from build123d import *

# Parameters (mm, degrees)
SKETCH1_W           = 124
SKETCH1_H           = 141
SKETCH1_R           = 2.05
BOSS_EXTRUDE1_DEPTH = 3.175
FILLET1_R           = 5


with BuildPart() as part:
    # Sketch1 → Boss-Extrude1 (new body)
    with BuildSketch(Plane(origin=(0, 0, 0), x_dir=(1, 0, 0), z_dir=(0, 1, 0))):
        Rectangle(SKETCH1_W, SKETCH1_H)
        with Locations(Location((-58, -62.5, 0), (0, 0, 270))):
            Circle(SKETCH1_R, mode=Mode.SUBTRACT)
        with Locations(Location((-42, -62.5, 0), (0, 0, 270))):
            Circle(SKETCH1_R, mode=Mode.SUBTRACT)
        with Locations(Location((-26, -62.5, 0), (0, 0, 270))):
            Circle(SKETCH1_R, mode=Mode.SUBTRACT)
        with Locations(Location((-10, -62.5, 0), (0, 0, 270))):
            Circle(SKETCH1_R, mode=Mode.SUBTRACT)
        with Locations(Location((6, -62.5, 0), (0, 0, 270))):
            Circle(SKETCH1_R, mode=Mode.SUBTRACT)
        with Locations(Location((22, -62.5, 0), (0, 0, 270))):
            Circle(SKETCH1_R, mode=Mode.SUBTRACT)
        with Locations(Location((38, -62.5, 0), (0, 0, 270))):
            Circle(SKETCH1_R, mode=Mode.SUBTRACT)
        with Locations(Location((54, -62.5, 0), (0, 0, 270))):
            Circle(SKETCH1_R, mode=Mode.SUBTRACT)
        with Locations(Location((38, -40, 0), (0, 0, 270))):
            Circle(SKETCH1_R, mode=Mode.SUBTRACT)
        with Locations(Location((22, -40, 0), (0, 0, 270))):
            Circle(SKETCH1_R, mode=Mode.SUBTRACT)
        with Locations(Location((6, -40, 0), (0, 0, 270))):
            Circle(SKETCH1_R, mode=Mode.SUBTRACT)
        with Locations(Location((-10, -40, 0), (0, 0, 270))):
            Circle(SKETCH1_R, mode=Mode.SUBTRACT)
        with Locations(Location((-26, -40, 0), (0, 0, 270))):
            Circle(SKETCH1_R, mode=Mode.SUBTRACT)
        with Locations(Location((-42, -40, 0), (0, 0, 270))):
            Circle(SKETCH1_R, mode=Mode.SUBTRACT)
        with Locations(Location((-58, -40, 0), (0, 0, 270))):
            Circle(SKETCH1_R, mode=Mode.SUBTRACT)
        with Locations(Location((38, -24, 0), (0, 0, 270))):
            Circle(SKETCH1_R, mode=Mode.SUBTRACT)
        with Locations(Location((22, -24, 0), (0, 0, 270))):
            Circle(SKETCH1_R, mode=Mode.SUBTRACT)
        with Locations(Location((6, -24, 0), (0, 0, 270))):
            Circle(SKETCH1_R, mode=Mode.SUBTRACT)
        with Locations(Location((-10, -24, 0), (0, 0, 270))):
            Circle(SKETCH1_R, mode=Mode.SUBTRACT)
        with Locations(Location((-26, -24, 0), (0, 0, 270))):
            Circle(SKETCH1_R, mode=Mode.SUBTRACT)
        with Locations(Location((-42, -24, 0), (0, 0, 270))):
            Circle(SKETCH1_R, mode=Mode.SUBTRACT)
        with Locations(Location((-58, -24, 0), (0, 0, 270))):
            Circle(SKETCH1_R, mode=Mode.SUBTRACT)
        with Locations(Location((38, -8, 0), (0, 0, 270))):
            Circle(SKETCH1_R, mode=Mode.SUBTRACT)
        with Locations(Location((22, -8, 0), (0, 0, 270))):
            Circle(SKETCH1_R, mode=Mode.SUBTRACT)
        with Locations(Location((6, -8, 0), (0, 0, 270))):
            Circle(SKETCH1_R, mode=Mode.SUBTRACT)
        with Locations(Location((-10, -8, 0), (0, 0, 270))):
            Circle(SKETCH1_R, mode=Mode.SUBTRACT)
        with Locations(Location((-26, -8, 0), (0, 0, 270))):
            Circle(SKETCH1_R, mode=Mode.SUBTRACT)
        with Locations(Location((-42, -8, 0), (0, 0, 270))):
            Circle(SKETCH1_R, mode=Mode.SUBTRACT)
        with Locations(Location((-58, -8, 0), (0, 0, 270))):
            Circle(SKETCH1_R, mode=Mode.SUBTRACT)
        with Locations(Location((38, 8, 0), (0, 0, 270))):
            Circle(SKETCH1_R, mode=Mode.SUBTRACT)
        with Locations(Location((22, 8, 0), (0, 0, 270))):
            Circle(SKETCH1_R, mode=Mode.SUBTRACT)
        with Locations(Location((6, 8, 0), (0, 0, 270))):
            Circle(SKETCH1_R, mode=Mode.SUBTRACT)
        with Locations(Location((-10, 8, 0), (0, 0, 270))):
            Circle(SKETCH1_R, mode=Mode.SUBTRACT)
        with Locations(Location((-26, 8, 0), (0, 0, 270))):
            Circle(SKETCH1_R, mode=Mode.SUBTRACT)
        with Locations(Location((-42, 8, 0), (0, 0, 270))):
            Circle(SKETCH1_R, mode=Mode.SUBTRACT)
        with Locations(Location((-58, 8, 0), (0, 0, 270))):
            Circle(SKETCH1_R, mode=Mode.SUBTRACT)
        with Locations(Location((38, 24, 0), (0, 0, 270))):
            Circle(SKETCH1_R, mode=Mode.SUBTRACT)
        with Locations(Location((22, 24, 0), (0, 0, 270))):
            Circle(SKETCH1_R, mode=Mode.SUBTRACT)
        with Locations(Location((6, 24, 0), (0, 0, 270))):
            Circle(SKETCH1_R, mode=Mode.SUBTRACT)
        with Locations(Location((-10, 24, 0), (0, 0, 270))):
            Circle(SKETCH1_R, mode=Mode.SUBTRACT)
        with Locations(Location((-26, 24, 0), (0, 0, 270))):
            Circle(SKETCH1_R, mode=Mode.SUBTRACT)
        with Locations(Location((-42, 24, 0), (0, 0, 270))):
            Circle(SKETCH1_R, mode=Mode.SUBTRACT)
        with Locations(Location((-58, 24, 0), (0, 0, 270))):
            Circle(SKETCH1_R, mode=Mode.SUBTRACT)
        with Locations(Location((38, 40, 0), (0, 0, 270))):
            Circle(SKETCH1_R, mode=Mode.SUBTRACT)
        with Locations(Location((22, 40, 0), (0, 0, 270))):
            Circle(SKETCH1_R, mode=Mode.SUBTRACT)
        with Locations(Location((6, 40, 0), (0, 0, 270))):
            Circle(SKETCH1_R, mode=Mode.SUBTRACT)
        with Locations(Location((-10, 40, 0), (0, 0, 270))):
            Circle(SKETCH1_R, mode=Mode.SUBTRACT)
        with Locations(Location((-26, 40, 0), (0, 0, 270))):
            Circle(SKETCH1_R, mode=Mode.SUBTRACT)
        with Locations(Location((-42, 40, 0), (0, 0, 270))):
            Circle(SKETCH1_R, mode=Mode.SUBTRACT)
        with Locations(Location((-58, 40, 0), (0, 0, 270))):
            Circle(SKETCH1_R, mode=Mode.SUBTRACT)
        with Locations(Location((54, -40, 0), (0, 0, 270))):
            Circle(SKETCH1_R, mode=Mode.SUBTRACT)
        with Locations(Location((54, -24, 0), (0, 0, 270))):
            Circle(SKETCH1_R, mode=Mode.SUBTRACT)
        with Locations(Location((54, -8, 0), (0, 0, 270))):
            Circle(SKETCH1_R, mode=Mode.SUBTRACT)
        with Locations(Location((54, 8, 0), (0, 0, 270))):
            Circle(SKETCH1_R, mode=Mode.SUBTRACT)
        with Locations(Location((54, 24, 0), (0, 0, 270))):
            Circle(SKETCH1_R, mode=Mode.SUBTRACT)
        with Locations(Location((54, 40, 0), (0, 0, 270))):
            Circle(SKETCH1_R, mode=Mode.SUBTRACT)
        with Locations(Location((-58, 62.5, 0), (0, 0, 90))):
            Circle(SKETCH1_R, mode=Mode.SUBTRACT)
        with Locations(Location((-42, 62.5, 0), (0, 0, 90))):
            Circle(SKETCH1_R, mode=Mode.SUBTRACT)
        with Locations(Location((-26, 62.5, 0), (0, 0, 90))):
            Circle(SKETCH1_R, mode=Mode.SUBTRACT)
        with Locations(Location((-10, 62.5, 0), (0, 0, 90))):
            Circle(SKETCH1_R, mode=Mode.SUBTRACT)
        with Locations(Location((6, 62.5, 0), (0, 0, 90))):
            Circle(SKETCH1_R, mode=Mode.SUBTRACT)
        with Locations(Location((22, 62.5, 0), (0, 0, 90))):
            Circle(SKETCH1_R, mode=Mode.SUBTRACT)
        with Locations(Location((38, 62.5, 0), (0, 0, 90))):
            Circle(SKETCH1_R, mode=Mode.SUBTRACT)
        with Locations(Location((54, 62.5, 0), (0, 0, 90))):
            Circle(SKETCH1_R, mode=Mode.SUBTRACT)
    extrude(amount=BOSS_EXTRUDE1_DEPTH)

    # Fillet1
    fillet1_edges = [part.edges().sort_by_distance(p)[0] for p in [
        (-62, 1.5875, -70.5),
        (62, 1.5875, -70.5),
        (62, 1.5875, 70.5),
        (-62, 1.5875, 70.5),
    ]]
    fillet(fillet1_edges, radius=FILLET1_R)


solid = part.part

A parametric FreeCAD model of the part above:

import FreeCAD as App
import Part
import Sketcher

V = App.Vector
Q = App.Units.Quantity


def edges_at(feature, points):
    """Names of the edges that pass closest to the given points."""
    edges = feature.Shape.Edges
    near = lambda p: min(range(len(edges)), key=lambda i: edges[i].distToShape(Part.Vertex(*p))[0])
    return sorted({f"Edge{near(p) + 1}" for p in points})

doc = App.newDocument("Part")
body = doc.addObject("PartDesign::Body", "Body")

sketch1 = body.newObject("Sketcher::SketchObject", "Sketch")
sketch1.AttachmentSupport = (doc.getObject("XZ_Plane"), [""])
sketch1.MapMode = "FlatFace"
sketch1.addGeometry([
    Part.LineSegment(V(-62, -70.5, 0), V(-62, 70.5, 0)),
    Part.LineSegment(V(-62, 70.5, 0), V(62, 70.5, 0)),
    Part.LineSegment(V(62, 70.5, 0), V(62, -70.5, 0)),
    Part.LineSegment(V(62, -70.5, 0), V(-62, -70.5, 0)),
    Part.Circle(V(-58, 62.5, 0), V(0, 0, 1), 2.05),
    Part.Circle(V(-42, 62.5, 0), V(0, 0, 1), 2.05),
    Part.Circle(V(-58, 40, 0), V(0, 0, 1), 2.05),
    Part.Circle(V(-42, 40, 0), V(0, 0, 1), 2.05),
    Part.Circle(V(-26, 62.5, 0), V(0, 0, 1), 2.05),
    Part.Circle(V(-10, 62.5, 0), V(0, 0, 1), 2.05),
    Part.Circle(V(-26, 40, 0), V(0, 0, 1), 2.05),
    Part.Circle(V(-10, 40, 0), V(0, 0, 1), 2.05),
    Part.Circle(V(-58, 24, 0), V(0, 0, 1), 2.05),
    Part.Circle(V(-42, 24, 0), V(0, 0, 1), 2.05),
    Part.Circle(V(-58, 8, 0), V(0, 0, 1), 2.05),
    Part.Circle(V(-42, 8, 0), V(0, 0, 1), 2.05),
    Part.Circle(V(-26, 24, 0), V(0, 0, 1), 2.05),
    Part.Circle(V(-10, 24, 0), V(0, 0, 1), 2.05),
    Part.Circle(V(-26, 8, 0), V(0, 0, 1), 2.05),
    Part.Circle(V(-10, 8, 0), V(0, 0, 1), 2.05),
    Part.Circle(V(6, 62.5, 0), V(0, 0, 1), 2.05),
    Part.Circle(V(22, 62.5, 0), V(0, 0, 1), 2.05),
    Part.Circle(V(6, 40, 0), V(0, 0, 1), 2.05),
    Part.Circle(V(22, 40, 0), V(0, 0, 1), 2.05),
    Part.Circle(V(38, 62.5, 0), V(0, 0, 1), 2.05),
    Part.Circle(V(54, 62.5, 0), V(0, 0, 1), 2.05),
    Part.Circle(V(38, 40, 0), V(0, 0, 1), 2.05),
    Part.Circle(V(54, 40, 0), V(0, 0, 1), 2.05),
    Part.Circle(V(6, 24, 0), V(0, 0, 1), 2.05),
    Part.Circle(V(22, 24, 0), V(0, 0, 1), 2.05),
    Part.Circle(V(6, 8, 0), V(0, 0, 1), 2.05),
    Part.Circle(V(22, 8, 0), V(0, 0, 1), 2.05),
    Part.Circle(V(38, 24, 0), V(0, 0, 1), 2.05),
    Part.Circle(V(54, 24, 0), V(0, 0, 1), 2.05),
    Part.Circle(V(38, 8, 0), V(0, 0, 1), 2.05),
    Part.Circle(V(54, 8, 0), V(0, 0, 1), 2.05),
    Part.Circle(V(-58, -8, 0), V(0, 0, 1), 2.05),
    Part.Circle(V(-42, -8, 0), V(0, 0, 1), 2.05),
    Part.Circle(V(-58, -24, 0), V(0, 0, 1), 2.05),
    Part.Circle(V(-42, -24, 0), V(0, 0, 1), 2.05),
    Part.Circle(V(-26, -8, 0), V(0, 0, 1), 2.05),
    Part.Circle(V(-10, -8, 0), V(0, 0, 1), 2.05),
    Part.Circle(V(-26, -24, 0), V(0, 0, 1), 2.05),
    Part.Circle(V(-10, -24, 0), V(0, 0, 1), 2.05),
    Part.Circle(V(-58, -40, 0), V(0, 0, 1), 2.05),
    Part.Circle(V(-42, -40, 0), V(0, 0, 1), 2.05),
    Part.Circle(V(-58, -62.5, 0), V(0, 0, 1), 2.05),
    Part.Circle(V(-42, -62.5, 0), V(0, 0, 1), 2.05),
    Part.Circle(V(-26, -40, 0), V(0, 0, 1), 2.05),
    Part.Circle(V(-10, -40, 0), V(0, 0, 1), 2.05),
    Part.Circle(V(-26, -62.5, 0), V(0, 0, 1), 2.05),
    Part.Circle(V(-10, -62.5, 0), V(0, 0, 1), 2.05),
    Part.Circle(V(6, -8, 0), V(0, 0, 1), 2.05),
    Part.Circle(V(22, -8, 0), V(0, 0, 1), 2.05),
    Part.Circle(V(6, -24, 0), V(0, 0, 1), 2.05),
    Part.Circle(V(22, -24, 0), V(0, 0, 1), 2.05),
    Part.Circle(V(38, -8, 0), V(0, 0, 1), 2.05),
    Part.Circle(V(54, -8, 0), V(0, 0, 1), 2.05),
    Part.Circle(V(38, -24, 0), V(0, 0, 1), 2.05),
    Part.Circle(V(54, -24, 0), V(0, 0, 1), 2.05),
    Part.Circle(V(6, -40, 0), V(0, 0, 1), 2.05),
    Part.Circle(V(22, -40, 0), V(0, 0, 1), 2.05),
    Part.Circle(V(6, -62.5, 0), V(0, 0, 1), 2.05),
    Part.Circle(V(22, -62.5, 0), V(0, 0, 1), 2.05),
    Part.Circle(V(38, -40, 0), V(0, 0, 1), 2.05),
    Part.Circle(V(54, -40, 0), V(0, 0, 1), 2.05),
    Part.Circle(V(38, -62.5, 0), V(0, 0, 1), 2.05),
    Part.Circle(V(54, -62.5, 0), V(0, 0, 1), 2.05),
], False)
sketch1.addConstraint([
    Sketcher.Constraint("Coincident", 0, 2, 1, 1),
    Sketcher.Constraint("Coincident", 1, 2, 2, 1),
    Sketcher.Constraint("Coincident", 2, 2, 3, 1),
    Sketcher.Constraint("Coincident", 3, 2, 0, 1),
    Sketcher.Constraint("Vertical", 0),
    Sketcher.Constraint("Horizontal", 1),
    Sketcher.Constraint("Vertical", 2),
    Sketcher.Constraint("Horizontal", 3),
    Sketcher.Constraint("Equal", 4, 5),
    Sketcher.Constraint("Equal", 5, 6),
    Sketcher.Constraint("Equal", 6, 7),
    Sketcher.Constraint("Equal", 7, 8),
    Sketcher.Constraint("Equal", 8, 9),
    Sketcher.Constraint("Equal", 9, 10),
    Sketcher.Constraint("Equal", 10, 11),
    Sketcher.Constraint("Equal", 11, 12),
    Sketcher.Constraint("Equal", 12, 13),
    Sketcher.Constraint("Equal", 13, 14),
    Sketcher.Constraint("Equal", 14, 15),
    Sketcher.Constraint("Equal", 15, 16),
    Sketcher.Constraint("Equal", 16, 17),
    Sketcher.Constraint("Equal", 17, 18),
    Sketcher.Constraint("Equal", 18, 19),
    Sketcher.Constraint("Equal", 19, 20),
    Sketcher.Constraint("Equal", 20, 21),
    Sketcher.Constraint("Equal", 21, 22),
    Sketcher.Constraint("Equal", 22, 23),
    Sketcher.Constraint("Equal", 23, 24),
    Sketcher.Constraint("Equal", 24, 25),
    Sketcher.Constraint("Equal", 25, 26),
    Sketcher.Constraint("Equal", 26, 27),
    Sketcher.Constraint("Equal", 27, 28),
    Sketcher.Constraint("Equal", 28, 29),
    Sketcher.Constraint("Equal", 29, 30),
    Sketcher.Constraint("Equal", 30, 31),
    Sketcher.Constraint("Equal", 31, 32),
    Sketcher.Constraint("Equal", 32, 33),
    Sketcher.Constraint("Equal", 33, 34),
    Sketcher.Constraint("Equal", 34, 35),
    Sketcher.Constraint("Equal", 35, 36),
    Sketcher.Constraint("Equal", 36, 37),
    Sketcher.Constraint("Equal", 37, 38),
    Sketcher.Constraint("Equal", 38, 39),
    Sketcher.Constraint("Equal", 39, 40),
    Sketcher.Constraint("Equal", 40, 41),
    Sketcher.Constraint("Equal", 41, 42),
    Sketcher.Constraint("Equal", 42, 43),
    Sketcher.Constraint("Equal", 43, 44),
    Sketcher.Constraint("Equal", 44, 45),
    Sketcher.Constraint("Equal", 45, 46),
    Sketcher.Constraint("Equal", 46, 47),
    Sketcher.Constraint("Equal", 47, 48),
    Sketcher.Constraint("Equal", 48, 49),
    Sketcher.Constraint("Equal", 49, 50),
    Sketcher.Constraint("Equal", 50, 51),
    Sketcher.Constraint("Equal", 51, 52),
    Sketcher.Constraint("Equal", 52, 53),
    Sketcher.Constraint("Equal", 53, 54),
    Sketcher.Constraint("Equal", 54, 55),
    Sketcher.Constraint("Equal", 55, 56),
    Sketcher.Constraint("Equal", 56, 57),
    Sketcher.Constraint("Equal", 57, 58),
    Sketcher.Constraint("Equal", 58, 59),
    Sketcher.Constraint("Equal", 59, 60),
    Sketcher.Constraint("Equal", 60, 61),
    Sketcher.Constraint("Equal", 61, 62),
    Sketcher.Constraint("Equal", 62, 63),
    Sketcher.Constraint("Equal", 63, 64),
    Sketcher.Constraint("Equal", 64, 65),
    Sketcher.Constraint("Equal", 65, 66),
    Sketcher.Constraint("Equal", 66, 67),
    Sketcher.Constraint("Symmetric", 0, 2, 2, 2, -1, 1),
    Sketcher.Constraint("Symmetric", 14, 3, 36, 3, -1),
    Sketcher.Constraint("Symmetric", 15, 3, 37, 3, -1),
    Sketcher.Constraint("Symmetric", 12, 3, 38, 3, -1),
    Sketcher.Constraint("Symmetric", 13, 3, 39, 3, -1),
    Sketcher.Constraint("Symmetric", 18, 3, 40, 3, -1),
    Sketcher.Constraint("Symmetric", 19, 3, 41, 3, -1),
    Sketcher.Constraint("Symmetric", 16, 3, 42, 3, -1),
    Sketcher.Constraint("Symmetric", 17, 3, 43, 3, -1),
    Sketcher.Constraint("Symmetric", 6, 3, 44, 3, -1),
    Sketcher.Constraint("Symmetric", 7, 3, 45, 3, -1),
    Sketcher.Constraint("Symmetric", 4, 3, 46, 3, -1),
    Sketcher.Constraint("Symmetric", 5, 3, 47, 3, -1),
    Sketcher.Constraint("Symmetric", 10, 3, 48, 3, -1),
    Sketcher.Constraint("Symmetric", 11, 3, 49, 3, -1),
    Sketcher.Constraint("Symmetric", 8, 3, 50, 3, -1),
    Sketcher.Constraint("Symmetric", 9, 3, 51, 3, -1),
    Sketcher.Constraint("Symmetric", 30, 3, 52, 3, -1),
    Sketcher.Constraint("Symmetric", 31, 3, 53, 3, -1),
    Sketcher.Constraint("Symmetric", 28, 3, 54, 3, -1),
    Sketcher.Constraint("Symmetric", 29, 3, 55, 3, -1),
    Sketcher.Constraint("Symmetric", 34, 3, 56, 3, -1),
    Sketcher.Constraint("Symmetric", 35, 3, 57, 3, -1),
    Sketcher.Constraint("Symmetric", 32, 3, 58, 3, -1),
    Sketcher.Constraint("Symmetric", 33, 3, 59, 3, -1),
    Sketcher.Constraint("Symmetric", 22, 3, 60, 3, -1),
    Sketcher.Constraint("Symmetric", 23, 3, 61, 3, -1),
    Sketcher.Constraint("Symmetric", 20, 3, 62, 3, -1),
    Sketcher.Constraint("Symmetric", 21, 3, 63, 3, -1),
    Sketcher.Constraint("Symmetric", 26, 3, 64, 3, -1),
    Sketcher.Constraint("Symmetric", 27, 3, 65, 3, -1),
    Sketcher.Constraint("Symmetric", 24, 3, 66, 3, -1),
    Sketcher.Constraint("Symmetric", 25, 3, 67, 3, -1),
    Sketcher.Constraint("Horizontal", 4, 3, 5, 3),
    Sketcher.Constraint("Horizontal", 6, 3, 7, 3),
    Sketcher.Constraint("Horizontal", 5, 3, 8, 3),
    Sketcher.Constraint("Horizontal", 8, 3, 9, 3),
    Sketcher.Constraint("Horizontal", 7, 3, 10, 3),
    Sketcher.Constraint("Horizontal", 10, 3, 11, 3),
    Sketcher.Constraint("Horizontal", 12, 3, 13, 3),
    Sketcher.Constraint("Horizontal", 14, 3, 15, 3),
    Sketcher.Constraint("Horizontal", 13, 3, 16, 3),
    Sketcher.Constraint("Horizontal", 16, 3, 17, 3),
    Sketcher.Constraint("Horizontal", 15, 3, 18, 3),
    Sketcher.Constraint("Horizontal", 18, 3, 19, 3),
    Sketcher.Constraint("Horizontal", 9, 3, 20, 3),
    Sketcher.Constraint("Horizontal", 20, 3, 21, 3),
    Sketcher.Constraint("Horizontal", 11, 3, 22, 3),
    Sketcher.Constraint("Horizontal", 22, 3, 23, 3),
    Sketcher.Constraint("Horizontal", 21, 3, 24, 3),
    Sketcher.Constraint("Horizontal", 24, 3, 25, 3),
    Sketcher.Constraint("Horizontal", 23, 3, 26, 3),
    Sketcher.Constraint("Horizontal", 26, 3, 27, 3),
    Sketcher.Constraint("Horizontal", 17, 3, 28, 3),
    Sketcher.Constraint("Horizontal", 28, 3, 29, 3),
    Sketcher.Constraint("Horizontal", 19, 3, 30, 3),
    Sketcher.Constraint("Horizontal", 30, 3, 31, 3),
    Sketcher.Constraint("Horizontal", 29, 3, 32, 3),
    Sketcher.Constraint("Horizontal", 32, 3, 33, 3),
    Sketcher.Constraint("Horizontal", 31, 3, 34, 3),
    Sketcher.Constraint("Horizontal", 34, 3, 35, 3),
    Sketcher.Constraint("Vertical", 4, 3, 6, 3),
    Sketcher.Constraint("Vertical", 5, 3, 7, 3),
    Sketcher.Constraint("Vertical", 8, 3, 10, 3),
    Sketcher.Constraint("Vertical", 9, 3, 11, 3),
    Sketcher.Constraint("Vertical", 6, 3, 12, 3),
    Sketcher.Constraint("Vertical", 7, 3, 13, 3),
    Sketcher.Constraint("Vertical", 12, 3, 14, 3),
    Sketcher.Constraint("Vertical", 13, 3, 15, 3),
    Sketcher.Constraint("Vertical", 10, 3, 16, 3),
    Sketcher.Constraint("Vertical", 11, 3, 17, 3),
    Sketcher.Constraint("Vertical", 16, 3, 18, 3),
    Sketcher.Constraint("Vertical", 17, 3, 19, 3),
    Sketcher.Constraint("Vertical", 20, 3, 22, 3),
    Sketcher.Constraint("Vertical", 21, 3, 23, 3),
    Sketcher.Constraint("Vertical", 24, 3, 26, 3),
    Sketcher.Constraint("Vertical", 25, 3, 27, 3),
    Sketcher.Constraint("Vertical", 22, 3, 28, 3),
    Sketcher.Constraint("Vertical", 23, 3, 29, 3),
    Sketcher.Constraint("Vertical", 28, 3, 30, 3),
    Sketcher.Constraint("Vertical", 29, 3, 31, 3),
    Sketcher.Constraint("Vertical", 26, 3, 32, 3),
    Sketcher.Constraint("Vertical", 27, 3, 33, 3),
    Sketcher.Constraint("Vertical", 32, 3, 34, 3),
    Sketcher.Constraint("Vertical", 33, 3, 35, 3),
    Sketcher.Constraint("Diameter", 4, Q("4.1 mm")),
    Sketcher.Constraint("DistanceX", 1, 1, 1, 2, Q("124 mm")),
    Sketcher.Constraint("DistanceY", 0, 1, 0, 2, Q("141 mm")),
    Sketcher.Constraint("DistanceX", 4, 3, -1, 1, Q("58 mm")),
    Sketcher.Constraint("DistanceX", 5, 3, -1, 1, Q("42 mm")),
    Sketcher.Constraint("DistanceY", -1, 1, 6, 3, Q("40 mm")),
    Sketcher.Constraint("DistanceX", 8, 3, -1, 1, Q("26 mm")),
    Sketcher.Constraint("DistanceX", 9, 3, -1, 1, Q("10 mm")),
    Sketcher.Constraint("DistanceY", -1, 1, 12, 3, Q("24 mm")),
    Sketcher.Constraint("DistanceY", -1, 1, 14, 3, Q("8 mm")),
    Sketcher.Constraint("DistanceX", -1, 1, 20, 3, Q("6 mm")),
    Sketcher.Constraint("DistanceX", -1, 1, 21, 3, Q("22 mm")),
    Sketcher.Constraint("DistanceX", -1, 1, 24, 3, Q("38 mm")),
    Sketcher.Constraint("DistanceX", -1, 1, 25, 3, Q("54 mm")),
    Sketcher.Constraint("DistanceY", -1, 1, 4, 3, Q("62.5 mm")),
])
pad1 = body.newObject("PartDesign::Pad", "Pad")
pad1.Profile = sketch1
pad1.Length = 3.175
pad1.Reversed = True
doc.recompute()

fillet = body.newObject("PartDesign::Fillet", "Fillet")
fillet.Base = (pad1, edges_at(pad1, [
    (-62, 1.587, -70.5),
    (62, 1.587, -70.5),
    (62, 1.587, 70.5),
    (-62, 1.587, 70.5),
]))
fillet.Radius = 5

doc.recompute()
